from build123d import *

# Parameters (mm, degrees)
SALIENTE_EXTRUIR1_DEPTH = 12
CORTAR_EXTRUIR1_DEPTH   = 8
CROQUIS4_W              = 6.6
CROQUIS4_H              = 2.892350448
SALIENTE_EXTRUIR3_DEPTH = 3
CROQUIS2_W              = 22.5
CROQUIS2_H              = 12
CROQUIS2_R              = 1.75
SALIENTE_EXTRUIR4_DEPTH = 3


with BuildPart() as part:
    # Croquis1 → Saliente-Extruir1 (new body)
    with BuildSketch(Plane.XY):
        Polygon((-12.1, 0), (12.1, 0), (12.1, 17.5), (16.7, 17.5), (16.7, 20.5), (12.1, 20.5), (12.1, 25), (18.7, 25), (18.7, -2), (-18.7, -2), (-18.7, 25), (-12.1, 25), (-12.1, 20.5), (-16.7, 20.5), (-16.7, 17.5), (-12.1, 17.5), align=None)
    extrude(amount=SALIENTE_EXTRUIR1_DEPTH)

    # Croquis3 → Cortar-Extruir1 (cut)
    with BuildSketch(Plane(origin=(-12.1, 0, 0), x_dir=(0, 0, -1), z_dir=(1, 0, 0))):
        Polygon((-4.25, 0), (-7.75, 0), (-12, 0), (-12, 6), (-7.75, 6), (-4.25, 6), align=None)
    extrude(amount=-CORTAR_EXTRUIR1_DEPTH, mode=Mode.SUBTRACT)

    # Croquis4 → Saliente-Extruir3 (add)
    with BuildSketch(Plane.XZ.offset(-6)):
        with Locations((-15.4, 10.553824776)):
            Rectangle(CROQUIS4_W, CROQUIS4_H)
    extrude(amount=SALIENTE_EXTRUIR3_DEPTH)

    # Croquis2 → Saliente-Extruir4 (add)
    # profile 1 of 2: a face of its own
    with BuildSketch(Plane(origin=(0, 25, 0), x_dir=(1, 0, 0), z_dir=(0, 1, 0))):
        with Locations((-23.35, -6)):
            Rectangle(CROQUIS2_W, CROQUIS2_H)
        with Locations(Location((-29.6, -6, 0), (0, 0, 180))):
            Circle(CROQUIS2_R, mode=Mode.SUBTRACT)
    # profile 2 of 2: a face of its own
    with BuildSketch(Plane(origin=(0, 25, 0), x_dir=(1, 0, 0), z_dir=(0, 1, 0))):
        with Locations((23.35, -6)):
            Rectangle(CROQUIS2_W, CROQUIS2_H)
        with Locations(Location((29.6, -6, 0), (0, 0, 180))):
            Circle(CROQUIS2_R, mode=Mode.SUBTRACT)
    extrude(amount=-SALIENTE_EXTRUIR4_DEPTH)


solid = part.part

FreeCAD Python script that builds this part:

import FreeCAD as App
import Part
import Sketcher


def add_polygon(sketch, points):
    """Adds a closed chain of lines whose ends are joined by coincident constraints."""
    first, n = sketch.GeometryCount, len(points)
    for a, b in zip(points, points[1:] + points[:1]):
        sketch.addGeometry(Part.LineSegment(App.Vector(*a, 0), App.Vector(*b, 0)), False)
    for i in range(n):
        sketch.addConstraint(Sketcher.Constraint("Coincident", first + i, 2, first + (i + 1) % n, 1))

doc = App.newDocument("Part")
body = doc.addObject("PartDesign::Body", "Body")

# Sketch on XY plane
sketch1 = body.newObject("Sketcher::SketchObject", "Sketch")
sketch1.AttachmentSupport = (doc.getObject("XY_Plane"), [""])
sketch1.MapMode = "FlatFace"
add_polygon(sketch1, [(12.1, 0), (-12.1, 0), (-12.1, 17.5), (-16.7, 17.5), (-16.7, 20.5), (-12.1, 20.5), (-12.1, 25), (-18.7, 25), (-18.7, -2), (18.7, -2), (18.7, 25), (12.1, 25), (12.1, 20.5), (16.7, 20.5), (16.7, 17.5), (12.1, 17.5)])  # lines 0-15
sketch1.addConstraint(Sketcher.Constraint("Horizontal", 0))
sketch1.addConstraint(Sketcher.Constraint("Vertical", 1))
sketch1.addConstraint(Sketcher.Constraint("Horizontal", 2))
sketch1.addConstraint(Sketcher.Constraint("Vertical", 3))
sketch1.addConstraint(Sketcher.Constraint("Horizontal", 4))
sketch1.addConstraint(Sketcher.Constraint("Vertical", 5))
sketch1.addConstraint(Sketcher.Constraint("Horizontal", 6))
sketch1.addConstraint(Sketcher.Constraint("Vertical", 7))
sketch1.addConstraint(Sketcher.Constraint("Horizontal", 8))
sketch1.addConstraint(Sketcher.Constraint("Vertical", 9))
sketch1.addConstraint(Sketcher.Constraint("Horizontal", 10))
sketch1.addConstraint(Sketcher.Constraint("Vertical", 11))
sketch1.addConstraint(Sketcher.Constraint("Horizontal", 12))
sketch1.addConstraint(Sketcher.Constraint("Vertical", 13))
sketch1.addConstraint(Sketcher.Constraint("Horizontal", 14))
sketch1.addConstraint(Sketcher.Constraint("Vertical", 15))
sketch1.addConstraint(Sketcher.Constraint("Symmetric", 0, 2, 15, 2, -1, 1))
sketch1.addConstraint(Sketcher.Constraint("Symmetric", 6, 2, 9, 2, -2))
sketch1.addConstraint(Sketcher.Constraint("Symmetric", 4, 2, 11, 2, -2))
sketch1.addConstraint(Sketcher.Constraint("Symmetric", 2, 2, 13, 2, -2))
sketch1.addConstraint(Sketcher.Constraint("Vertical", 1, 2, 4, 2))
sketch1.addConstraint(Sketcher.Constraint("DistanceY", 3, 1, 3, 2, 3.0))
sketch1.addConstraint(Sketcher.Constraint("DistanceY", 7, 2, 7, 1, 27.0))
sketch1.addConstraint(Sketcher.Constraint("DistanceX", 0, 2, 0, 1, 24.2))
sketch1.addConstraint(Sketcher.Constraint("DistanceX", 2, 2, 2, 1, 4.6))
sketch1.addConstraint(Sketcher.Constraint("DistanceX", 6, 2, 6, 1, 6.6))
sketch1.addConstraint(Sketcher.Constraint("DistanceY", 1, 1, 1, 2, 17.5))
sketch1.addConstraint(Sketcher.Constraint("DistanceY", 5, 1, 5, 2, 4.5))
pad1 = body.newObject("PartDesign::Pad", "Pad")
pad1.Profile = sketch1
pad1.Length = 12

# Sketch on YZ plane
sketch2 = body.newObject("Sketcher::SketchObject", "Sketch001")
sketch2.AttachmentSupport = (doc.getObject("YZ_Plane"), [""])
sketch2.MapMode = "FlatFace"
sketch2.AttachmentOffset = App.Placement(App.Vector(0, 0, -12.1), App.Rotation())
add_polygon(sketch2, [(0, 12), (0, 4.25), (6, 4.25), (6, 12)])  # lines 0-3
sketch2.addConstraint(Sketcher.Constraint("Vertical", 0))
sketch2.addConstraint(Sketcher.Constraint("Horizontal", 1))
sketch2.addConstraint(Sketcher.Constraint("Vertical", 2))
sketch2.addConstraint(Sketcher.Constraint("Horizontal", 3))
sketch2.addConstraint(Sketcher.Constraint("PointOnObject", 0, 2, -2))
sketch2.addConstraint(Sketcher.Constraint("DistanceX", 1, 1, 1, 2, 6.0))
sketch2.addConstraint(Sketcher.Constraint("DistanceY", -1, 1, 2, 2, 12.0))
sketch2.addConstraint(Sketcher.Constraint("DistanceY", 0, 2, 0, 1, 7.75))
pocket1 = body.newObject("PartDesign::Pocket", "Pocket")
pocket1.Profile = sketch2
pocket1.Length = 8

# Sketch on XZ plane
sketch3 = body.newObject("Sketcher::SketchObject", "Sketch002")
sketch3.AttachmentSupport = (doc.getObject("XZ_Plane"), [""])
sketch3.MapMode = "FlatFace"
sketch3.AttachmentOffset = App.Placement(App.Vector(0, 0, -6), App.Rotation())
add_polygon(sketch3, [(-18.7, 12), (-18.7, 9.10765), (-12.1, 9.10765), (-12.1, 12)])  # lines 0-3
sketch3.addConstraint(Sketcher.Constraint("Vertical", 0))
sketch3.addConstraint(Sketcher.Constraint("Horizontal", 1))
sketch3.addConstraint(Sketcher.Constraint("Vertical", 2))
sketch3.addConstraint(Sketcher.Constraint("Horizontal", 3))
sketch3.addConstraint(Sketcher.Constraint("DistanceX", 1, 1, 1, 2, 6.6))
sketch3.addConstraint(Sketcher.Constraint("DistanceY", -1, 1, 2, 2, 12.0))
sketch3.addConstraint(Sketcher.Constraint("DistanceX", 0, 2, -1, 1, 18.7))
sketch3.addConstraint(Sketcher.Constraint("DistanceY", 0, 2, 0, 1, 2.89235))
pad2 = body.newObject("PartDesign::Pad", "Pad001")
pad2.Profile = sketch3
pad2.Length = 3

# Sketch on XZ plane
sketch4 = body.newObject("Sketcher::SketchObject", "Sketch003")
sketch4.AttachmentSupport = (doc.getObject("XZ_Plane"), [""])
sketch4.MapMode = "FlatFace"
sketch4.AttachmentOffset = App.Placement(App.Vector(0, 0, -25), App.Rotation())
add_polygon(sketch4, [(-34.6, 0), (-34.6, 12), (-12.1, 12), (-12.1, 0)])  # lines 0-3
sketch4.addGeometry(Part.Circle(App.Vector(-29.6, 6, 0), App.Vector(0, 0, 1), 1.75), False)  # 4
add_polygon(sketch4, [(12.1, 0), (12.1, 12), (34.6, 12), (34.6, 0)])  # lines 5-8
sketch4.addGeometry(Part.Circle(App.Vector(29.6, 6, 0), App.Vector(0, 0, 1), 1.75), False)  # 9
sketch4.addConstraint(Sketcher.Constraint("Vertical", 0))
sketch4.addConstraint(Sketcher.Constraint("Horizontal", 1))
sketch4.addConstraint(Sketcher.Constraint("Vertical", 2))
sketch4.addConstraint(Sketcher.Constraint("Horizontal", 3))
sketch4.addConstraint(Sketcher.Constraint("Vertical", 5))
sketch4.addConstraint(Sketcher.Constraint("Horizontal", 6))
sketch4.addConstraint(Sketcher.Constraint("Vertical", 7))
sketch4.addConstraint(Sketcher.Constraint("Horizontal", 8))
sketch4.addConstraint(Sketcher.Constraint("Equal", 4, 9))
sketch4.addConstraint(Sketcher.Constraint("Symmetric", 3, 2, 7, 2, -1, 1))
sketch4.addConstraint(Sketcher.Constraint("Symmetric", 4, 3, 9, 3, -2))
sketch4.addConstraint(Sketcher.Constraint("Symmetric", 1, 2, 5, 2, -2))
sketch4.addConstraint(Sketcher.Constraint("PointOnObject", 2, 2, -1))
sketch4.addConstraint(Sketcher.Constraint("Diameter", 4, 3.5))
sketch4.addConstraint(Sketcher.Constraint("DistanceY", 0, 1, 0, 2, 12.0))
sketch4.addConstraint(Sketcher.Constraint("DistanceX", 1, 1, 1, 2, 22.5))
sketch4.addConstraint(Sketcher.Constraint("DistanceY", -1, 1, 4, 3, 6.0))
sketch4.addConstraint(Sketcher.Constraint("DistanceX", 0, 2, 4, 3, 5.0))
sketch4.addConstraint(Sketcher.Constraint("DistanceX", 4, 3, -1, 1, 29.6))
pad3 = body.newObject("PartDesign::Pad", "Pad002")
pad3.Profile = sketch4
pad3.Length = 3

doc.recompute()
